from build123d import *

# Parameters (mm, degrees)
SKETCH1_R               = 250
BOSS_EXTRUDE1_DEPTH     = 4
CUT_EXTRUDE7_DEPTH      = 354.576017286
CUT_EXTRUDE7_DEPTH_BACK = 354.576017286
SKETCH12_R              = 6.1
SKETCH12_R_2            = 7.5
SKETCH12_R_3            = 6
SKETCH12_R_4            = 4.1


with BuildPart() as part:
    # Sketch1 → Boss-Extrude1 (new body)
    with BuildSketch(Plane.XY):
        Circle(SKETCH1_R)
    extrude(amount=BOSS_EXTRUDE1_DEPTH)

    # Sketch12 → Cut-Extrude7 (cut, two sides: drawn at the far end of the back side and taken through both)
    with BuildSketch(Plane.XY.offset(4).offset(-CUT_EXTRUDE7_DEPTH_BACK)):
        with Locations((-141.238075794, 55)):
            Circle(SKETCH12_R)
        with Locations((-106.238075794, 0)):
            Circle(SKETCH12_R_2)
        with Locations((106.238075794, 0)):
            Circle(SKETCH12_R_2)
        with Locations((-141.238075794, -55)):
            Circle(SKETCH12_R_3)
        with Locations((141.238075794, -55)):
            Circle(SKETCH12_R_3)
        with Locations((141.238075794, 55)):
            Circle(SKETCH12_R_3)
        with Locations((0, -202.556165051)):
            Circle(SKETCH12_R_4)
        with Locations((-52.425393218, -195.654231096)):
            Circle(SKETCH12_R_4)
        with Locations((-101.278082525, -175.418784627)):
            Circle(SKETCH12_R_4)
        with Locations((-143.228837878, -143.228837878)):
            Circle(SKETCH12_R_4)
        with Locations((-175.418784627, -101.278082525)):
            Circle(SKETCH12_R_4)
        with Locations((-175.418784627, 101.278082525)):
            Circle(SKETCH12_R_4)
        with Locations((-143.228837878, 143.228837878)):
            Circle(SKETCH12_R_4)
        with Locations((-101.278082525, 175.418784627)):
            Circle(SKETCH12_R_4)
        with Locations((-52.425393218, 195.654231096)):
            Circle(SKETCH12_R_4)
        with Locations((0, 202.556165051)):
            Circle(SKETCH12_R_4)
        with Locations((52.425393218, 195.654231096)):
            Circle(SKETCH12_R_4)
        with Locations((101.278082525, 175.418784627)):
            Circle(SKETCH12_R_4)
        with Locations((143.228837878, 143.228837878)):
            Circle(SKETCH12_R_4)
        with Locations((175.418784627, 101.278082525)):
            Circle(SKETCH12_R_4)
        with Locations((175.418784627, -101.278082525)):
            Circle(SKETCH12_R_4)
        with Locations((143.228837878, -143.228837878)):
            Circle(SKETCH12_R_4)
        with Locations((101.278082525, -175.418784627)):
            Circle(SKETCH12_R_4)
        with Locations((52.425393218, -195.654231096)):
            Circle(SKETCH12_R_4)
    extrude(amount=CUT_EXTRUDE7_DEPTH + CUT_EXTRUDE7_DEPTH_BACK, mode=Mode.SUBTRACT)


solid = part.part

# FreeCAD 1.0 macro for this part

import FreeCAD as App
import Part
import Sketcher

V = App.Vector
Q = App.Units.Quantity

doc = App.newDocument("Part")
body = doc.addObject("PartDesign::Body", "Body")

# Sketch on XY plane
sketch1 = body.newObject("Sketcher::SketchObject", "Sketch")
sketch1.AttachmentSupport = (doc.getObject("XY_Plane"), [""])
sketch1.MapMode = "FlatFace"
sketch1.addGeometry(Part.Circle(V(0, 0, 0), V(0, 0, 1), 250), False)
sketch1.addConstraint([
    Sketcher.Constraint("Coincident", 0, 3, -1, 1),
    Sketcher.Constraint("Diameter", 0, Q("500 mm")),
])
pad1 = body.newObject("PartDesign::Pad", "Pad")
pad1.Profile = sketch1
pad1.Length = 4

# Sketch on XY plane
sketch2 = body.newObject("Sketcher::SketchObject", "Sketch001")
sketch2.AttachmentSupport = (doc.getObject("XY_Plane"), [""])
sketch2.MapMode = "FlatFace"
sketch2.AttachmentOffset = App.Placement(V(0, 0, 4), App.Rotation())
sketch2.addGeometry([
    Part.Circle(V(-141.2, 55, 0), V(0, 0, 1), 6.1),  # 0
    Part.Circle(V(-106.2, 0, 0), V(0, 0, 1), 7.5),  # 1
    Part.Circle(V(106.2, 0, 0), V(0, 0, 1), 7.5),  # 2
    Part.Circle(V(-141.2, -55, 0), V(0, 0, 1), 6),  # 3
    Part.Circle(V(141.2, -55, 0), V(0, 0, 1), 6),  # 4
    Part.Circle(V(141.2, 55, 0), V(0, 0, 1), 6),  # 5
    Part.Circle(V(0, -202.6, 0), V(0, 0, 1), 4.1),  # 6
    Part.Circle(V(-52.4, -195.7, 0), V(0, 0, 1), 4.1),  # 7
    Part.Circle(V(-101.3, -175.4, 0), V(0, 0, 1), 4.1),  # 8
    Part.Circle(V(-143.2, -143.2, 0), V(0, 0, 1), 4.1),  # 9
    Part.Circle(V(-175.4, -101.3, 0), V(0, 0, 1), 4.1),  # 10
    Part.Circle(V(-175.4, 101.3, 0), V(0, 0, 1), 4.1),  # 11
    Part.Circle(V(-143.2, 143.2, 0), V(0, 0, 1), 4.1),  # 12
    Part.Circle(V(-101.3, 175.4, 0), V(0, 0, 1), 4.1),  # 13
    Part.Circle(V(-52.4, 195.7, 0), V(0, 0, 1), 4.1),  # 14
    Part.Circle(V(0, 202.6, 0), V(0, 0, 1), 4.1),  # 15
    Part.Circle(V(52.4, 195.7, 0), V(0, 0, 1), 4.1),  # 16
    Part.Circle(V(101.3, 175.4, 0), V(0, 0, 1), 4.1),  # 17
    Part.Circle(V(143.2, 143.2, 0), V(0, 0, 1), 4.1),  # 18
    Part.Circle(V(175.4, 101.3, 0), V(0, 0, 1), 4.1),  # 19
    Part.Circle(V(175.4, -101.3, 0), V(0, 0, 1), 4.1),  # 20
    Part.Circle(V(143.2, -143.2, 0), V(0, 0, 1), 4.1),  # 21
    Part.Circle(V(101.3, -175.4, 0), V(0, 0, 1), 4.1),  # 22
    Part.Circle(V(52.4, -195.7, 0), V(0, 0, 1), 4.1),  # 23
], False)
sketch2.addConstraint([
    Sketcher.Constraint("Equal", 1, 2),
    Sketcher.Constraint("Equal", 3, 4),
    Sketcher.Constraint("Equal", 4, 5),
    Sketcher.Constraint("Equal", 6, 7),
    Sketcher.Constraint("Equal", 7, 8),
    Sketcher.Constraint("Equal", 8, 9),
    Sketcher.Constraint("Equal", 9, 10),
    Sketcher.Constraint("Equal", 10, 11),
    Sketcher.Constraint("Equal", 11, 12),
    Sketcher.Constraint("Equal", 12, 13),
    Sketcher.Constraint("Equal", 13, 14),
    Sketcher.Constraint("Equal", 14, 15),
    Sketcher.Constraint("Equal", 15, 16),
    Sketcher.Constraint("Equal", 16, 17),
    Sketcher.Constraint("Equal", 17, 18),
    Sketcher.Constraint("Equal", 18, 19),
    Sketcher.Constraint("Equal", 19, 20),
    Sketcher.Constraint("Equal", 20, 21),
    Sketcher.Constraint("Equal", 21, 22),
    Sketcher.Constraint("Equal", 22, 23),
    Sketcher.Constraint("Symmetric", 1, 3, 2, 3, -1, 1),
    Sketcher.Constraint("Symmetric", 0, 3, 4, 3, -1, 1),
    Sketcher.Constraint("Symmetric", 3, 3, 5, 3, -1, 1),
    Sketcher.Constraint("Symmetric", 6, 3, 15, 3, -1, 1),
    Sketcher.Constraint("Symmetric", 7, 3, 16, 3, -1, 1),
    Sketcher.Constraint("Symmetric", 8, 3, 17, 3, -1, 1),
    Sketcher.Constraint("Symmetric", 9, 3, 18, 3, -1, 1),
    Sketcher.Constraint("Symmetric", 10, 3, 19, 3, -1, 1),
    Sketcher.Constraint("Symmetric", 11, 3, 20, 3, -1, 1),
    Sketcher.Constraint("Symmetric", 12, 3, 21, 3, -1, 1),
    Sketcher.Constraint("Symmetric", 13, 3, 22, 3, -1, 1),
    Sketcher.Constraint("Symmetric", 14, 3, 23, 3, -1, 1),
    Sketcher.Constraint("Symmetric", 3, 3, 4, 3, -2),
    Sketcher.Constraint("Symmetric", 14, 3, 16, 3, -2),
    Sketcher.Constraint("Symmetric", 13, 3, 17, 3, -2),
    Sketcher.Constraint("Symmetric", 12, 3, 18, 3, -2),
    Sketcher.Constraint("Symmetric", 11, 3, 19, 3, -2),
    Sketcher.Constraint("PointOnObject", 1, 3, -1),
    Sketcher.Constraint("PointOnObject", 6, 3, -2),
    Sketcher.Constraint("Diameter", 1, Q("15 mm")),
    Sketcher.Constraint("Diameter", 3, Q("12 mm")),
    Sketcher.Constraint("Diameter", 0, Q("12.2 mm")),
    Sketcher.Constraint("Diameter", 6, Q("8.2 mm")),
    Sketcher.Constraint("DistanceY", -1, 1, 0, 3, Q("55 mm")),
    Sketcher.Constraint("DistanceX", 0, 3, 1, 3, Q("35 mm")),
    Sketcher.Constraint("DistanceY", 7, 3, -1, 1, Q("195.654231 mm")),
    Sketcher.Constraint("DistanceX", 1, 3, 2, 3, Q("212.476152 mm")),
    Sketcher.Constraint("DistanceX", 7, 3, 4, 3, Q("193.663469 mm")),
    Sketcher.Constraint("DistanceX", 8, 3, 7, 3, Q("48.852689 mm")),
    Sketcher.Constraint("DistanceY", 6, 3, 8, 3, Q("27.13738 mm")),
    Sketcher.Constraint("DistanceX", 10, 3, 3, 3, Q("34.180709 mm")),
    Sketcher.Constraint("DistanceY", 7, 3, 10, 3, Q("94.376149 mm")),
    Sketcher.Constraint("DistanceY", 9, 3, 11, 3, Q("244.50692 mm")),
    Sketcher.Constraint("DistanceX", 12, 3, 16, 3, Q("195.654231 mm")),
    Sketcher.Constraint("DistanceY", 6, 3, -1, 1, Q("202.556165 mm")),
])
pocket1 = body.newObject("PartDesign::Pocket", "Pocket")
pocket1.Profile = sketch2
pocket1.Type = "ThroughAll"
pocket1.Midplane = True

doc.recompute()
